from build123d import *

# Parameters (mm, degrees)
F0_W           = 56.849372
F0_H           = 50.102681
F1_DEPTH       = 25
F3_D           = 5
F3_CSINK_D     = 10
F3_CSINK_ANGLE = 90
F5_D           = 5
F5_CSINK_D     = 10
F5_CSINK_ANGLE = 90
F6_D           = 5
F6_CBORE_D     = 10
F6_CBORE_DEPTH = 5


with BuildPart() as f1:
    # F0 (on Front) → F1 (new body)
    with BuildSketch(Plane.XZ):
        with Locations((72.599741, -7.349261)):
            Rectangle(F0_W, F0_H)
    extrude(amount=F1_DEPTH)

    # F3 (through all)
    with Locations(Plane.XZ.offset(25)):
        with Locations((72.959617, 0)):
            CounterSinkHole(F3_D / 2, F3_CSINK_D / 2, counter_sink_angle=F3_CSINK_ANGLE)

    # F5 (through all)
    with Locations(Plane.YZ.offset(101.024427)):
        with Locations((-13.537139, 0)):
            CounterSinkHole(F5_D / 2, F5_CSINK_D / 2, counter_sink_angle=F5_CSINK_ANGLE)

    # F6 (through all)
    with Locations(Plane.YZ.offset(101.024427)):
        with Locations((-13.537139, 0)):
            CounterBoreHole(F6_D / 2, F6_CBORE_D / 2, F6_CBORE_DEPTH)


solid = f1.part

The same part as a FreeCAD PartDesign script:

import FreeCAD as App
import Part
import Sketcher
Q = App.Units.Quantity


def add_polygon(sketch, points):
    """Adds a closed chain of lines whose ends are joined by coincident constraints."""
    first, n = sketch.GeometryCount, len(points)
    for a, b in zip(points, points[1:] + points[:1]):
        sketch.addGeometry(Part.LineSegment(App.Vector(*a, 0), App.Vector(*b, 0)), False)
    for i in range(n):
        sketch.addConstraint(Sketcher.Constraint("Coincident", first + i, 2, first + (i + 1) % n, 1))

doc = App.newDocument("Part")
params = doc.addObject("Spreadsheet::Sheet", "Params")
for row, (alias, value) in enumerate([
    ("pad1_length", "25 mm"),
    ("sketch2_diameter", "5 mm"),
    ("hole_diameter", "5 mm"),
    ("hole_csink_diameter", "10 mm"),
    ("sketch3_diameter", "5 mm"),
    ("hole2_diameter", "5 mm"),
    ("hole2_csink_diameter", "10 mm"),
    ("sketch4_diameter", "5 mm"),
    ("hole3_diameter", "5 mm"),
    ("hole3_cbore_diameter", "10 mm"),
    ("hole3_cbore_depth", "5 mm"),
], start=1):
    params.set(f"A{row}", alias)
    params.set(f"B{row}", "=" + value)
    params.setAlias(f"B{row}", alias)

body = doc.addObject("PartDesign::Body", "Body")

sketch1 = body.newObject("Sketcher::SketchObject", "Sketch")
sketch1.AttachmentSupport = (doc.getObject("XZ_Plane"), [""])
sketch1.MapMode = "FlatFace"
add_polygon(sketch1, [(44, 18), (44, -32), (101, -32), (101, 18)])
sketch1.addConstraint([
    Sketcher.Constraint("Vertical", 0),
    Sketcher.Constraint("Horizontal", 1),
    Sketcher.Constraint("Vertical", 2),
    Sketcher.Constraint("Horizontal", 3),
    Sketcher.Constraint("DistanceY", 0, 2, 0, 1, Q("50.102681 mm")),
    Sketcher.Constraint("DistanceY", 0, 2, -1, 1, Q("32.400602 mm")),
    Sketcher.Constraint("DistanceX", 1, 1, 1, 2, Q("56.849372 mm")),
    Sketcher.Constraint("DistanceX", -1, 1, 0, 2, Q("44.175055 mm")),
])
pad1 = body.newObject("PartDesign::Pad", "Pad")
pad1.Profile = sketch1
pad1.setExpression("Length", "Params.pad1_length")

sketch2 = body.newObject("Sketcher::SketchObject", "Sketch001")
sketch2.AttachmentSupport = (doc.getObject("XZ_Plane"), [""])
sketch2.MapMode = "FlatFace"
sketch2.AttachmentOffset = App.Placement(App.Vector(0, 0, 25), App.Rotation())
sketch2.addGeometry(Part.Circle(App.Vector(73, 0, 0), App.Vector(0, 0, 1), 2.5), False)
sketch2.addConstraint([
    Sketcher.Constraint("PointOnObject", 0, 3, -1),
    Sketcher.Constraint("Diameter", 0, Q("5 mm")),
    Sketcher.Constraint("DistanceX", -1, 1, 0, 3, Q("72.959617 mm")),
])
sketch2.setExpression("Constraints[1]", "Params.sketch2_diameter")
doc.recompute()
hole = body.newObject("PartDesign::Hole", "Hole")
hole.Profile = sketch2
hole.ThreadType = "None"
hole.setExpression("Diameter", "Params.hole_diameter")
hole.DepthType = "ThroughAll"
hole.HoleCutType = "Countersink"
hole.setExpression("HoleCutDiameter", "Params.hole_csink_diameter")
hole.HoleCutCountersinkAngle = 90

sketch3 = body.newObject("Sketcher::SketchObject", "Sketch002")
sketch3.AttachmentSupport = (doc.getObject("YZ_Plane"), [""])
sketch3.MapMode = "FlatFace"
sketch3.AttachmentOffset = App.Placement(App.Vector(0, 0, 101.024427), App.Rotation())
sketch3.addGeometry(Part.Circle(App.Vector(-13.5, 0, 0), App.Vector(0, 0, 1), 2.5), False)
sketch3.addConstraint([
    Sketcher.Constraint("PointOnObject", 0, 3, -1),
    Sketcher.Constraint("Diameter", 0, Q("5 mm")),
    Sketcher.Constraint("DistanceX", 0, 3, -1, 1, Q("13.537139 mm")),
])
sketch3.setExpression("Constraints[1]", "Params.sketch3_diameter")
doc.recompute()
hole2 = body.newObject("PartDesign::Hole", "Hole001")
hole2.Profile = sketch3
hole2.ThreadType = "None"
hole2.setExpression("Diameter", "Params.hole2_diameter")
hole2.DepthType = "ThroughAll"
hole2.HoleCutType = "Countersink"
hole2.setExpression("HoleCutDiameter", "Params.hole2_csink_diameter")
hole2.HoleCutCountersinkAngle = 90

sketch4 = body.newObject("Sketcher::SketchObject", "Sketch003")
sketch4.AttachmentSupport = (doc.getObject("YZ_Plane"), [""])
sketch4.MapMode = "FlatFace"
sketch4.AttachmentOffset = App.Placement(App.Vector(0, 0, 101.024427), App.Rotation())
sketch4.addGeometry(Part.Circle(App.Vector(-13.5, 0, 0), App.Vector(0, 0, 1), 2.5), False)
sketch4.addConstraint([
    Sketcher.Constraint("PointOnObject", 0, 3, -1),
    Sketcher.Constraint("Diameter", 0, Q("5 mm")),
    Sketcher.Constraint("DistanceX", 0, 3, -1, 1, Q("13.537139 mm")),
])
sketch4.setExpression("Constraints[1]", "Params.sketch4_diameter")
doc.recompute()
hole3 = body.newObject("PartDesign::Hole", "Hole002")
hole3.Profile = sketch4
hole3.ThreadType = "None"
hole3.setExpression("Diameter", "Params.hole3_diameter")
hole3.DepthType = "ThroughAll"
hole3.HoleCutType = "Counterbore"
hole3.setExpression("HoleCutDiameter", "Params.hole3_cbore_diameter")
hole3.setExpression("HoleCutDepth", "Params.hole3_cbore_depth")

doc.recompute()
